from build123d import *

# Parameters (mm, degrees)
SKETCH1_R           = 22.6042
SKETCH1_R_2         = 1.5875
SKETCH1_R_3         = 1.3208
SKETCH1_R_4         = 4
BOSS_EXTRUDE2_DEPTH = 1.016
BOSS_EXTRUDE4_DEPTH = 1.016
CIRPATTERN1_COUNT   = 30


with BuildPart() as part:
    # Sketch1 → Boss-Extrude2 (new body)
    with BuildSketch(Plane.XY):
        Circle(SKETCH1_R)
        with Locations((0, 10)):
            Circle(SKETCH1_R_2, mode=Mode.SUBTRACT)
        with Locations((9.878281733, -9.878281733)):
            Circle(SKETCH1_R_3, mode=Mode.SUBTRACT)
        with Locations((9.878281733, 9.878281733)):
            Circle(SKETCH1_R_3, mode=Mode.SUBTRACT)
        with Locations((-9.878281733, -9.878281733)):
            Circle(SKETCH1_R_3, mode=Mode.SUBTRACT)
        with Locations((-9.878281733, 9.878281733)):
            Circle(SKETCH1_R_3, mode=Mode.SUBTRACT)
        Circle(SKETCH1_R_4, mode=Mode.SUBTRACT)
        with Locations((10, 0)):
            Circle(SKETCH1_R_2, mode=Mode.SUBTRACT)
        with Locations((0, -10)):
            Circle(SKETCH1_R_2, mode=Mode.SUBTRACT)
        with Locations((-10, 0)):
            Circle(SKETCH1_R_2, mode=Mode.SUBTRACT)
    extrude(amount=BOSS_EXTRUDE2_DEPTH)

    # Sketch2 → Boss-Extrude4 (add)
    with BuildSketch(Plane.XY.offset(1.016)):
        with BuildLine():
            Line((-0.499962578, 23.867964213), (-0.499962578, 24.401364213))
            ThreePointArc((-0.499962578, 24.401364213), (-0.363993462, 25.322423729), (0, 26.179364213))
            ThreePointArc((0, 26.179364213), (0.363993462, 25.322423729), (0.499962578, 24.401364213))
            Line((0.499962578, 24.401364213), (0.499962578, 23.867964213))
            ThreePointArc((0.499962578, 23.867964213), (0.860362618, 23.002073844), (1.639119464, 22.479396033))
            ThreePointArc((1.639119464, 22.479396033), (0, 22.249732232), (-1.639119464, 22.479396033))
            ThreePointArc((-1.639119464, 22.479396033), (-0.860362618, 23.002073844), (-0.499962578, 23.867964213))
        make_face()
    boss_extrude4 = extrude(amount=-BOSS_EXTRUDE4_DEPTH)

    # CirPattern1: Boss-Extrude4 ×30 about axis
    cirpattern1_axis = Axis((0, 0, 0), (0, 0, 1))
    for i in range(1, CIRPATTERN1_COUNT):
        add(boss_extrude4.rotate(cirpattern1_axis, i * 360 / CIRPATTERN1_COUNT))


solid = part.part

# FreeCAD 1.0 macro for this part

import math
import FreeCAD as App
import Part
import Sketcher

V = App.Vector
Q = App.Units.Quantity

doc = App.newDocument("Part")
body = doc.addObject("PartDesign::Body", "Body")

sketch1 = body.newObject("Sketcher::SketchObject", "Sketch")
sketch1.AttachmentSupport = (doc.getObject("XY_Plane"), [""])
sketch1.MapMode = "FlatFace"
sketch1.addGeometry(Part.Circle(V(0, 0, 0), V(0, 0, 1), 22.6), False)
sketch1.addGeometry(Part.Circle(V(-9.9, -9.9, 0), V(0, 0, 1), 1.3), False)
sketch1.addGeometry(Part.Circle(V(0, -10, 0), V(0, 0, 1), 1.6), False)
sketch1.addGeometry(Part.Circle(V(-10, 0, 0), V(0, 0, 1), 1.6), False)
sketch1.addGeometry(Part.Circle(V(0, 0, 0), V(0, 0, 1), 4), False)
sketch1.addGeometry(Part.Circle(V(9.9, -9.9, 0), V(0, 0, 1), 1.3), False)
sketch1.addGeometry(Part.Circle(V(10, 0, 0), V(0, 0, 1), 1.6), False)
sketch1.addGeometry(Part.Circle(V(-9.9, 9.9, 0), V(0, 0, 1), 1.3), False)
sketch1.addGeometry(Part.Circle(V(0, 10, 0), V(0, 0, 1), 1.6), False)
sketch1.addGeometry(Part.Circle(V(9.9, 9.9, 0), V(0, 0, 1), 1.3), False)
sketch1.addConstraint(Sketcher.Constraint("Coincident", 0, 3, -1, 1))
sketch1.addConstraint(Sketcher.Constraint("Coincident", 4, 3, -1, 1))
sketch1.addConstraint(Sketcher.Constraint("Equal", 2, 3))
sketch1.addConstraint(Sketcher.Constraint("Equal", 1, 5))
sketch1.addConstraint(Sketcher.Constraint("Equal", 3, 6))
sketch1.addConstraint(Sketcher.Constraint("Equal", 5, 7))
sketch1.addConstraint(Sketcher.Constraint("Equal", 6, 8))
sketch1.addConstraint(Sketcher.Constraint("Equal", 7, 9))
sketch1.addConstraint(Sketcher.Constraint("Symmetric", 3, 3, 6, 3, -1, 1))
sketch1.addConstraint(Sketcher.Constraint("Symmetric", 5, 3, 7, 3, -1, 1))
sketch1.addConstraint(Sketcher.Constraint("Symmetric", 2, 3, 8, 3, -1, 1))
sketch1.addConstraint(Sketcher.Constraint("Symmetric", 1, 3, 9, 3, -1, 1))
sketch1.addConstraint(Sketcher.Constraint("Symmetric", 1, 3, 5, 3, -2))
sketch1.addConstraint(Sketcher.Constraint("PointOnObject", 2, 3, -2))
sketch1.addConstraint(Sketcher.Constraint("PointOnObject", 3, 3, -1))
sketch1.addConstraint(Sketcher.Constraint("Diameter", 1, Q("0.104 in")))
sketch1.addConstraint(Sketcher.Constraint("Diameter", 2, Q("0.125 in")))
sketch1.addConstraint(Sketcher.Constraint("Diameter", 0, Q("45.2084 mm")))
sketch1.addConstraint(Sketcher.Constraint("Diameter", 4, Q("8 mm")))
sketch1.addConstraint(Sketcher.Constraint("DistanceY", 2, 3, -1, 1, Q("10 mm")))
sketch1.addConstraint(Sketcher.Constraint("DistanceX", 3, 3, -1, 1, Q("10 mm")))
sketch1.addConstraint(Sketcher.Constraint("DistanceX", 1, 3, -1, 1, Q("9.878282 mm")))
sketch1.addConstraint(Sketcher.Constraint("DistanceY", 1, 3, -1, 1, Q("9.878282 mm")))
pad1 = body.newObject("PartDesign::Pad", "Pad")
pad1.Profile = sketch1
pad1.Length = Q("0.04 in")

sketch2 = body.newObject("Sketcher::SketchObject", "Sketch001")
sketch2.AttachmentSupport = (doc.getObject("XY_Plane"), [""])
sketch2.MapMode = "FlatFace"
sketch2.AttachmentOffset = App.Placement(V(0, 0, 0.04 * 25.4), App.Rotation())
sketch2.addGeometry(Part.LineSegment(V(-0.5, 24.4, 0), V(-0.5, 23.9, 0)), False)
sketch2.addGeometry(Part.ArcOfCircle(Part.Circle(V(-2.1, 24, 0), V(0, 0, 1), 1.6), math.radians(-73), math.radians(-6)), False)
sketch2.addGeometry(Part.ArcOfCircle(Part.Circle(V(0, 28.2, 0), V(0, 0, 1), 6), math.radians(-106), math.radians(-74)), False)
sketch2.addGeometry(Part.ArcOfCircle(Part.Circle(V(2.1, 24, 0), V(0, 0, 1), 1.6), math.radians(-174), math.radians(-107)), False)
sketch2.addGeometry(Part.LineSegment(V(0.5, 23.9, 0), V(0.5, 24.4, 0)), False)
sketch2.addGeometry(Part.ArcOfCircle(Part.Circle(V(-3.2, 24.3, 0), V(0, 0, 1), 3.7), math.radians(1), math.radians(30)), False)
sketch2.addGeometry(Part.ArcOfCircle(Part.Circle(V(3.2, 24.3, 0), V(0, 0, 1), 3.7), math.radians(150), math.radians(179)), False)
sketch2.addConstraint(Sketcher.Constraint("Coincident", 0, 2, 1, 2))
sketch2.addConstraint(Sketcher.Constraint("Coincident", 1, 1, 2, 1))
sketch2.addConstraint(Sketcher.Constraint("Coincident", 2, 2, 3, 2))
sketch2.addConstraint(Sketcher.Constraint("Coincident", 3, 1, 4, 1))
sketch2.addConstraint(Sketcher.Constraint("Coincident", 4, 2, 5, 1))
sketch2.addConstraint(Sketcher.Constraint("Coincident", 5, 2, 6, 1))
sketch2.addConstraint(Sketcher.Constraint("Coincident", 6, 2, 0, 1))
sketch2.addConstraint(Sketcher.Constraint("Vertical", 0))
sketch2.addConstraint(Sketcher.Constraint("Vertical", 4))
sketch2.addConstraint(Sketcher.Constraint("Equal", 1, 3))
sketch2.addConstraint(Sketcher.Constraint("Equal", 5, 6))
sketch2.addConstraint(Sketcher.Constraint("Symmetric", 1, 3, 3, 3, -2))
sketch2.addConstraint(Sketcher.Constraint("Symmetric", 5, 3, 6, 3, -2))
sketch2.addConstraint(Sketcher.Constraint("PointOnObject", 2, 3, -2))
sketch2.addConstraint(Sketcher.Constraint("Horizontal", 0, 2, 3, 1))
sketch2.addConstraint(Sketcher.Constraint("Radius", 1, Q("0.064 in")))
sketch2.addConstraint(Sketcher.Constraint("DistanceY", 0, 2, 0, 1, Q("0.021 in")))
sketch2.addConstraint(Sketcher.Constraint("DistanceY", 4, 2, 5, 2, Q("0.07 in")))
sketch2.addConstraint(Sketcher.Constraint("Radius", 2, Q("5.964062 mm")))
sketch2.addConstraint(Sketcher.Constraint("Radius", 5, Q("3.659587 mm")))
sketch2.addConstraint(Sketcher.Constraint("DistanceX", 5, 3, 0, 2, Q("2.659 mm")))
sketch2.addConstraint(Sketcher.Constraint("DistanceX", 1, 3, -1, 1, Q("2.117151 mm")))
sketch2.addConstraint(Sketcher.Constraint("DistanceY", -1, 1, 1, 3, Q("24.033121 mm")))
sketch2.addConstraint(Sketcher.Constraint("DistanceX", 1, 1, -1, 1, Q("1.639119 mm")))
pad2 = body.newObject("PartDesign::Pad", "Pad001")
pad2.Profile = sketch2
pad2.Length = Q("0.04 in")
pad2.Reversed = True
doc.recompute()

polarpattern = body.newObject("PartDesign::PolarPattern", "PolarPattern")
polarpattern.Originals = [pad2]
polarpattern.Axis = (doc.getObject("Z_Axis"), [""])
polarpattern.Angle = 360
polarpattern.Occurrences = 30
body.Tip = polarpattern

doc.recompute()
